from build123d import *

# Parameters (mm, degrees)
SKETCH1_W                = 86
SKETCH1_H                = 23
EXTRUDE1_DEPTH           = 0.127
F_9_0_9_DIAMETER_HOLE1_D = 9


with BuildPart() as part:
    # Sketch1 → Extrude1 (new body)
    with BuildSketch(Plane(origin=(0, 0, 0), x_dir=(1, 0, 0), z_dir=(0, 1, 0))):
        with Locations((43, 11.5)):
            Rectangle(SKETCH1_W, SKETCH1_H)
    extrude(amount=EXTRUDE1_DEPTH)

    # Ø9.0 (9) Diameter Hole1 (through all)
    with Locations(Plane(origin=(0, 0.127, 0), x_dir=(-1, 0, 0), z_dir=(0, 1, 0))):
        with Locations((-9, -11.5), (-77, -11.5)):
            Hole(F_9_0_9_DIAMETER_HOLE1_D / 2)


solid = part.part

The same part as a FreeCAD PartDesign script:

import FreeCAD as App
import Part
import Sketcher

V = App.Vector

doc = App.newDocument("Part")
params = doc.addObject("Spreadsheet::Sheet", "Params")
for row, (alias, value) in enumerate([
    ("sketch1_width", "86 mm"),
    ("sketch1_height", "23 mm"),
    ("pad1_length", "0.127 mm"),
    ("sketch2_diameter", "9 mm"),
    ("hole_diameter", "9 mm"),
], start=1):
    params.set(f"A{row}", alias)
    params.set(f"B{row}", "=" + value)
    params.setAlias(f"B{row}", alias)

body = doc.addObject("PartDesign::Body", "Body")

# Sketch on XZ plane
sketch1 = body.newObject("Sketcher::SketchObject", "Sketch")
sketch1.AttachmentSupport = (doc.getObject("XZ_Plane"), [""])
sketch1.MapMode = "FlatFace"
sketch1.addGeometry(Part.LineSegment(V(0, -23, 0), V(0, 0, 0)), False)
sketch1.addGeometry(Part.LineSegment(V(0, 0, 0), V(86, 0, 0)), False)
sketch1.addGeometry(Part.LineSegment(V(86, 0, 0), V(86, -23, 0)), False)
sketch1.addGeometry(Part.LineSegment(V(86, -23, 0), V(0, -23, 0)), False)
sketch1.addConstraint(Sketcher.Constraint("Coincident", 0, 2, 1, 1))
sketch1.addConstraint(Sketcher.Constraint("Coincident", 1, 2, 2, 1))
sketch1.addConstraint(Sketcher.Constraint("Coincident", 2, 2, 3, 1))
sketch1.addConstraint(Sketcher.Constraint("Coincident", 3, 2, 0, 1))
sketch1.addConstraint(Sketcher.Constraint("Vertical", 0))
sketch1.addConstraint(Sketcher.Constraint("Horizontal", 1))
sketch1.addConstraint(Sketcher.Constraint("Vertical", 2))
sketch1.addConstraint(Sketcher.Constraint("Horizontal", 3))
sketch1.addConstraint(Sketcher.Constraint("Coincident", 0, 2, -1, 1))
sketch1.addConstraint(Sketcher.Constraint("DistanceX", 1, 1, 1, 2, 86.0))
sketch1.addConstraint(Sketcher.Constraint("DistanceY", 0, 1, 0, 2, 23.0))
sketch1.setExpression("Constraints[9]", "Params.sketch1_width")
sketch1.setExpression("Constraints[10]", "Params.sketch1_height")
pad1 = body.newObject("PartDesign::Pad", "Pad")
pad1.Profile = sketch1
pad1.setExpression("Length", "Params.pad1_length")
pad1.Reversed = True

# Sketch on XZ plane
sketch2 = body.newObject("Sketcher::SketchObject", "Sketch001")
sketch2.AttachmentSupport = (doc.getObject("XZ_Plane"), [""])
sketch2.MapMode = "FlatFace"
sketch2.AttachmentOffset = App.Placement(V(0, 0, -0.127), App.Rotation())
sketch2.addGeometry(Part.Circle(V(9, -11.5, 0), V(0, 0, 1), 4.5), False)
sketch2.addGeometry(Part.Circle(V(77, -11.5, 0), V(0, 0, 1), 4.5), False)
sketch2.addConstraint(Sketcher.Constraint("Equal", 0, 1))
sketch2.addConstraint(Sketcher.Constraint("Horizontal", 0, 3, 1, 3))
sketch2.addConstraint(Sketcher.Constraint("Diameter", 0, 9.0))
sketch2.addConstraint(Sketcher.Constraint("DistanceX", -1, 1, 0, 3, 9.0))
sketch2.addConstraint(Sketcher.Constraint("DistanceX", -1, 1, 1, 3, 77.0))
sketch2.addConstraint(Sketcher.Constraint("DistanceY", 0, 3, -1, 1, 11.5))
sketch2.setExpression("Constraints[2]", "Params.sketch2_diameter")
doc.recompute()
hole = body.newObject("PartDesign::Hole", "Hole")
hole.Profile = sketch2
hole.ThreadType = "None"
hole.setExpression("Diameter", "Params.hole_diameter")
hole.DepthType = "ThroughAll"
hole.Reversed = True

doc.recompute()
